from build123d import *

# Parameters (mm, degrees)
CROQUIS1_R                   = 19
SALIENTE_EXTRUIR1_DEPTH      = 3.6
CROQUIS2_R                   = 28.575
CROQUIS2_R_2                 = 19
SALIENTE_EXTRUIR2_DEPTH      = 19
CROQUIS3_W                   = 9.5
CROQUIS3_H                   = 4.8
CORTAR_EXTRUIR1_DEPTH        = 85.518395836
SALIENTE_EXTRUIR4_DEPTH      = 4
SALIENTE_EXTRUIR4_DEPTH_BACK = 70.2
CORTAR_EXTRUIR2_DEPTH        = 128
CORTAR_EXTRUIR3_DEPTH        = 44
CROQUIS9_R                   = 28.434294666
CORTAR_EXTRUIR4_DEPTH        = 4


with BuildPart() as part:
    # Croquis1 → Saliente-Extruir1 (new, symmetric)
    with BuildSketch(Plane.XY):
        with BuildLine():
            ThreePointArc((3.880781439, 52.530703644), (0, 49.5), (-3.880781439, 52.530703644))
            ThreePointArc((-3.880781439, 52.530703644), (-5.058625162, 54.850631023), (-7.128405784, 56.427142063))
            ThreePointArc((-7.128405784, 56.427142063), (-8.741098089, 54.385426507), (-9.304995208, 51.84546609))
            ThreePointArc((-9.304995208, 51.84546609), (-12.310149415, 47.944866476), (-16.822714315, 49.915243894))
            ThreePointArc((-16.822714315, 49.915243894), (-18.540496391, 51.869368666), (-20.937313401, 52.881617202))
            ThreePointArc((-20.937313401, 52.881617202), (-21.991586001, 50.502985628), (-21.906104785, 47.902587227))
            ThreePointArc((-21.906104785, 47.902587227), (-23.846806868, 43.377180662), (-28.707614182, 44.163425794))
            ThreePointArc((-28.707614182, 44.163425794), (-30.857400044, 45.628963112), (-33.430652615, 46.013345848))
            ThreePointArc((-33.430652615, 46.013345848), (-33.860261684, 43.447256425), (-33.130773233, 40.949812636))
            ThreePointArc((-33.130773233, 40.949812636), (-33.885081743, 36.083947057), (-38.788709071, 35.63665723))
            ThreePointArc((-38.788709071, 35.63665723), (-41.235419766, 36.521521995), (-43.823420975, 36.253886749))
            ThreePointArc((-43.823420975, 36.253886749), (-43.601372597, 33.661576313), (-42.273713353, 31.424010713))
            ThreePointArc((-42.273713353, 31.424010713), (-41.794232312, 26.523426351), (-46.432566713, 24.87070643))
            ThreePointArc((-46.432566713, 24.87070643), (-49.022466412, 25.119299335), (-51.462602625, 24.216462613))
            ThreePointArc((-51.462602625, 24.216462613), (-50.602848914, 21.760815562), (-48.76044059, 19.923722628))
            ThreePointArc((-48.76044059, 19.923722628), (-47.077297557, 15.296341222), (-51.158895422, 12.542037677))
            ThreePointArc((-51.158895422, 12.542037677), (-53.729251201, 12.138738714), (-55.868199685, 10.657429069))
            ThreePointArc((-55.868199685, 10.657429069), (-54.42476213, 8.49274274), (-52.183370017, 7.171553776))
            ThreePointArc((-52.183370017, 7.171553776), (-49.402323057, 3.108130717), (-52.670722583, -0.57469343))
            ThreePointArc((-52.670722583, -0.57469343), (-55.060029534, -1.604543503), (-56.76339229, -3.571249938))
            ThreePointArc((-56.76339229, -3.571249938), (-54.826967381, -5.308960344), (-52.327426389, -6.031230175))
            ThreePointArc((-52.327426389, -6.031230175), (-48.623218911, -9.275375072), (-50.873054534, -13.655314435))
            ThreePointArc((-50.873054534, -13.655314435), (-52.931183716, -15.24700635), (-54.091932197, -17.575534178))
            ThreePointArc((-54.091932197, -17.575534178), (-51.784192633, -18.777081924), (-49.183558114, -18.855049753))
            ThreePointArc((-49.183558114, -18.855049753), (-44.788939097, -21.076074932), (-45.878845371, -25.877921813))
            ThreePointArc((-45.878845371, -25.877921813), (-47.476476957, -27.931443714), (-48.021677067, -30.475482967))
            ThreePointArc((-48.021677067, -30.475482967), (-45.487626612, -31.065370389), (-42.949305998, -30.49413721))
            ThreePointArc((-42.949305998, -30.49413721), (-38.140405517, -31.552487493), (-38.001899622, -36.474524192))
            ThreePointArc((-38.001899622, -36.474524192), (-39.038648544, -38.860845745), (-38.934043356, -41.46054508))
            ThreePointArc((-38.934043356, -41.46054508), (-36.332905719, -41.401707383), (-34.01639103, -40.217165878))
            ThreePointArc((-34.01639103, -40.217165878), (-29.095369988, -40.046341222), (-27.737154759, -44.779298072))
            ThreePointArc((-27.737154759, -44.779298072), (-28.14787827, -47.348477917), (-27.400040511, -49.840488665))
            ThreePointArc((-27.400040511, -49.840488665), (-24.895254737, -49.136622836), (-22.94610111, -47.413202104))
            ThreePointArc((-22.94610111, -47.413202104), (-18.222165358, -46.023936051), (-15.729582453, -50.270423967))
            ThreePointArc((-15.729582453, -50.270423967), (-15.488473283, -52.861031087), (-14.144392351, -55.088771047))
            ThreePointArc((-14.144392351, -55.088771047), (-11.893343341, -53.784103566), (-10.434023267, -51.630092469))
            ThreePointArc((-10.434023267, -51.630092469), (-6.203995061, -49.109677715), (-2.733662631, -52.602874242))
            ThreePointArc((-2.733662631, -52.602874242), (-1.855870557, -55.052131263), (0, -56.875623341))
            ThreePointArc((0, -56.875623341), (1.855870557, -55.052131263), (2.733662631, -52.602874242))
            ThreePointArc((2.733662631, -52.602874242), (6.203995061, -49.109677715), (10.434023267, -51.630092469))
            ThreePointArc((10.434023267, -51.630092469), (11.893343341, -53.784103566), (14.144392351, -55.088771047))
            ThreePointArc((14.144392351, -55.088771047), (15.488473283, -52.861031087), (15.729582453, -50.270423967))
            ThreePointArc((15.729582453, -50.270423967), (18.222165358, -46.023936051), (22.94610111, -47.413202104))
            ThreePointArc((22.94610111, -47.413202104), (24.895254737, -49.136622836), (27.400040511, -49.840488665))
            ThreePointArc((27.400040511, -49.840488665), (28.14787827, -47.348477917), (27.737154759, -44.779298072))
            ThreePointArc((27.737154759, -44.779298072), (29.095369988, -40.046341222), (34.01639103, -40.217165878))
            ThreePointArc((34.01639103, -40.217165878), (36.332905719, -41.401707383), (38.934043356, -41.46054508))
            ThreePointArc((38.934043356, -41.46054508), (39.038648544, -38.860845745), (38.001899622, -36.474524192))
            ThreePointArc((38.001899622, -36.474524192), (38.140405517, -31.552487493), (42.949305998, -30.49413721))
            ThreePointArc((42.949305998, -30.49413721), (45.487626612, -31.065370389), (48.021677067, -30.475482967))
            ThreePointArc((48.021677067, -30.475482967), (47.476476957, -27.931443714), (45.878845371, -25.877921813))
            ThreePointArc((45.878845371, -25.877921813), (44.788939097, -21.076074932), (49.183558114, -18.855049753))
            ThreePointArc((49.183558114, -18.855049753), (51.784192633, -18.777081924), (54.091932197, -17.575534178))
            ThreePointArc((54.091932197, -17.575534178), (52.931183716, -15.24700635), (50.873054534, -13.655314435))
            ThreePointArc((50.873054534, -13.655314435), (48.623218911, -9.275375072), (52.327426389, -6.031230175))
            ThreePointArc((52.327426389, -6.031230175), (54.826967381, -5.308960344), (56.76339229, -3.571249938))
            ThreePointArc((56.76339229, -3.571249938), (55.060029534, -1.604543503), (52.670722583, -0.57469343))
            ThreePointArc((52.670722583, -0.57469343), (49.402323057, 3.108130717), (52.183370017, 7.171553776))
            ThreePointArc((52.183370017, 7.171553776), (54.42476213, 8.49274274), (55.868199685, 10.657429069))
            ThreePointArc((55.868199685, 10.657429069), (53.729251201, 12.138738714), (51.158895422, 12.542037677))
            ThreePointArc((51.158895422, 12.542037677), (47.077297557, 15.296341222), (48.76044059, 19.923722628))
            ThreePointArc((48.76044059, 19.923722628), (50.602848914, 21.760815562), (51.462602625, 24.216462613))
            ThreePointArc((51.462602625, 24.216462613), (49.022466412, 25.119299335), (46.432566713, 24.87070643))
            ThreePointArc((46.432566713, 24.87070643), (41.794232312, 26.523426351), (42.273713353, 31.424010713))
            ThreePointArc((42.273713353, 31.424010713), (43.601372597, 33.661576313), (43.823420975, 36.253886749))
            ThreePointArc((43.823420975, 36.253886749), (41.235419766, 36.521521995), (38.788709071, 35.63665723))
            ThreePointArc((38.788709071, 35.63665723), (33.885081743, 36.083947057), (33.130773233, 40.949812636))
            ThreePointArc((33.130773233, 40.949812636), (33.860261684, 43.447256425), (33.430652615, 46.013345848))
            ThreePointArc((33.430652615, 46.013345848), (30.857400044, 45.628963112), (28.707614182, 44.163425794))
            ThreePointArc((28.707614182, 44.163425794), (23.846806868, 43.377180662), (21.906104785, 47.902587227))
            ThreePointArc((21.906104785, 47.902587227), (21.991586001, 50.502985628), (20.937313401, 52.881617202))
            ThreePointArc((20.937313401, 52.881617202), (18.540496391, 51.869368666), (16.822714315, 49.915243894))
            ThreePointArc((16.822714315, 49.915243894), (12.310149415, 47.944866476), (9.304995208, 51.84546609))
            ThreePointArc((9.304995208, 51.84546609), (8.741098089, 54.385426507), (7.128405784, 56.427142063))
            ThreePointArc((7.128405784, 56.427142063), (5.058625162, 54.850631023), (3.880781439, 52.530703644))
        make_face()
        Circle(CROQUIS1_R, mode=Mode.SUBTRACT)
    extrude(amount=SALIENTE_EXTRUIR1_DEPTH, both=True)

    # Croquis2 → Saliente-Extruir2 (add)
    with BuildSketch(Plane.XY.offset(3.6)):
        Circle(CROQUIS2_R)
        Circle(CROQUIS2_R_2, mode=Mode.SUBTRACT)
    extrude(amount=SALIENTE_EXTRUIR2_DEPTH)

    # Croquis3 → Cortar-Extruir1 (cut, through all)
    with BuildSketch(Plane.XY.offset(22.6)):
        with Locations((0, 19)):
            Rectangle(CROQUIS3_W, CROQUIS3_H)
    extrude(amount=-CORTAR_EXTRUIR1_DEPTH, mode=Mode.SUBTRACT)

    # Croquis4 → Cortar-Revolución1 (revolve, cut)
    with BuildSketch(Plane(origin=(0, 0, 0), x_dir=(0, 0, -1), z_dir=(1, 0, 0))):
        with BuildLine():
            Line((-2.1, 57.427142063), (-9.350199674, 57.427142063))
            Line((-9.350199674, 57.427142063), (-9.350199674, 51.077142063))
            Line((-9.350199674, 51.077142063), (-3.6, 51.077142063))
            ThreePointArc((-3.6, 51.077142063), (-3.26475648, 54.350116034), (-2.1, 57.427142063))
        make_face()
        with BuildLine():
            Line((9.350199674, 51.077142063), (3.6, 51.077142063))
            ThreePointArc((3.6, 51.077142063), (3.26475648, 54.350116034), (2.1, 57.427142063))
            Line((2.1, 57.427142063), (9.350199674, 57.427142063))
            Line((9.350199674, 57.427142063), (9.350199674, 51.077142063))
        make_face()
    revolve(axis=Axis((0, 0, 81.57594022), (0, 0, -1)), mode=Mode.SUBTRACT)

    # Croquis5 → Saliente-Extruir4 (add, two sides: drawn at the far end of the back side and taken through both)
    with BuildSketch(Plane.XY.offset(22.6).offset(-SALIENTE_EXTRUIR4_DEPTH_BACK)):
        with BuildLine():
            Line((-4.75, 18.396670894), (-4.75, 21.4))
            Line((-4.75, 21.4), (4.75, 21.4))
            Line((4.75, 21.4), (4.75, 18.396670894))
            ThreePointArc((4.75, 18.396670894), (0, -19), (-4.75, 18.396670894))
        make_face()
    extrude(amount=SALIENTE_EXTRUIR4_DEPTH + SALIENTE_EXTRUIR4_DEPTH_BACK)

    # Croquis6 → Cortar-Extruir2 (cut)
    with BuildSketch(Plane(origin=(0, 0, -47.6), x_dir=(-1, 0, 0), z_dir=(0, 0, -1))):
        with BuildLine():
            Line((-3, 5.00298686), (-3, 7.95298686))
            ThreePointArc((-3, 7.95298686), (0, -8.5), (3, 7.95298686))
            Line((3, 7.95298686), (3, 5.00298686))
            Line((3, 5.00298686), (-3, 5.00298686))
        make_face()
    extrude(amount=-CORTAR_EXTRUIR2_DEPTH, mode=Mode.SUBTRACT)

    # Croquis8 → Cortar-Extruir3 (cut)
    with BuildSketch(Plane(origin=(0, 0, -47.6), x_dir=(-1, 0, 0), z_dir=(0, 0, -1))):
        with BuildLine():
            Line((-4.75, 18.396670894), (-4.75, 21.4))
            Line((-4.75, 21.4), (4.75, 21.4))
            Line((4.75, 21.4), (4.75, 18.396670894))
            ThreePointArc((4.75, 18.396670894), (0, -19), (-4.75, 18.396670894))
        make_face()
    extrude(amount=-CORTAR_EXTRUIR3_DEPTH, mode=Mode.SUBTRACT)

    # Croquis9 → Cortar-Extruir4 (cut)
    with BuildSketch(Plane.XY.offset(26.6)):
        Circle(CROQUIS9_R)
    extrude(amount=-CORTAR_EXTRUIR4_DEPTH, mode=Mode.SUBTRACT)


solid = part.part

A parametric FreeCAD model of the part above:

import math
import FreeCAD as App
import Part
import Sketcher

V = App.Vector
Q = App.Units.Quantity

doc = App.newDocument("Part")
body = doc.addObject("PartDesign::Body", "Body")

# Sketch on XY plane
sketch1 = doc.addObject("Sketcher::SketchObject", "Sketch")
body.addObject(sketch1)
sketch1.AttachmentSupport = (doc.XY_Plane, [""])
sketch1.MapMode = "FlatFace"
sketch1.addGeometry([
    Part.ArcOfCircle(Part.Circle(V(0, 53.5, 0), V(0, 0, 1), 4), math.radians(-166), math.radians(-14)),  # 0
    Part.ArcOfCircle(Part.Circle(V(-9.5, 51.1, 0), V(0, 0, 1), 5.8), math.radians(14), math.radians(66)),  # 1
    Part.ArcOfCircle(Part.Circle(V(-3.5, 51.9, 0), V(0, 0, 1), 5.8), math.radians(129), math.radians(180)),  # 2
    Part.ArcOfCircle(Part.Circle(V(-13.3, 51.8, 0), V(0, 0, 1), 4), math.radians(-152), math.radians(0)),  # 3
    Part.ArcOfCircle(Part.Circle(V(-21.9, 47.1, 0), V(0, 0, 1), 5.8), math.radians(28), math.radians(80)),  # 4
    Part.ArcOfCircle(Part.Circle(V(-16.3, 49.4, 0), V(0, 0, 1), 5.8), math.radians(143), math.radians(195)),  # 5
    Part.ArcOfCircle(Part.Circle(V(-25.8, 46.9, 0), V(0, 0, 1), 4), math.radians(-137), math.radians(15)),  # 6
    Part.ArcOfCircle(Part.Circle(V(-33, 40.2, 0), V(0, 0, 1), 5.8), math.radians(43), math.radians(94)),  # 7
    Part.ArcOfCircle(Part.Circle(V(-28, 43.8, 0), V(0, 0, 1), 5.8), math.radians(158), math.radians(209)),  # 8
    Part.ArcOfCircle(Part.Circle(V(-36.6, 39, 0), V(0, 0, 1), 4), math.radians(-123), math.radians(29)),  # 9
    Part.ArcOfCircle(Part.Circle(V(-41.9, 30.7, 0), V(0, 0, 1), 5.8), math.radians(57), math.radians(109)),  # 10
    Part.ArcOfCircle(Part.Circle(V(-38.1, 35.4, 0), V(0, 0, 1), 5.8), math.radians(172), math.radians(224)),  # 11
    Part.ArcOfCircle(Part.Circle(V(-45.2, 28.7, 0), V(0, 0, 1), 4), math.radians(-108), math.radians(44)),  # 12
    Part.ArcOfCircle(Part.Circle(V(-48.3, 19.3, 0), V(0, 0, 1), 5.8), math.radians(72), math.radians(123)),  # 13
    Part.ArcOfCircle(Part.Circle(V(-45.7, 24.9, 0), V(0, 0, 1), 5.8), math.radians(-174), math.radians(-122)),  # 14
    Part.ArcOfCircle(Part.Circle(V(-50.9, 16.5, 0), V(0, 0, 1), 4), math.radians(-94), math.radians(58)),  # 15
    Part.ArcOfCircle(Part.Circle(V(-51.6, 6.7, 0), V(0, 0, 1), 5.8), math.radians(86), math.radians(138)),  # 16
    Part.ArcOfCircle(Part.Circle(V(-50.4, 12.7, 0), V(0, 0, 1), 5.8), math.radians(-159), math.radians(-108)),  # 17
    Part.ArcOfCircle(Part.Circle(V(-53.4, 3.4, 0), V(0, 0, 1), 4), math.radians(-80), math.radians(72)),  # 18
    Part.ArcOfCircle(Part.Circle(V(-51.6, -6.3, 0), V(0, 0, 1), 5.8), math.radians(100), math.radians(152)),  # 19
    Part.ArcOfCircle(Part.Circle(V(-52, -0.2, 0), V(0, 0, 1), 5.8), math.radians(-145), math.radians(-93)),  # 20
    Part.ArcOfCircle(Part.Circle(V(-52.6, -10, 0), V(0, 0, 1), 4), math.radians(-65), math.radians(87)),  # 21
    Part.ArcOfCircle(Part.Circle(V(-48.4, -18.9, 0), V(0, 0, 1), 5.8), math.radians(115), math.radians(166)),  # 22
    Part.ArcOfCircle(Part.Circle(V(-50.3, -13.1, 0), V(0, 0, 1), 5.8), math.radians(-130), math.radians(-79)),  # 23
    Part.ArcOfCircle(Part.Circle(V(-48.4, -22.8, 0), V(0, 0, 1), 4), math.radians(-51), math.radians(101)),  # 24
    Part.ArcOfCircle(Part.Circle(V(-42.2, -30.4, 0), V(0, 0, 1), 5.8), math.radians(129), math.radians(181)),  # 25
    Part.ArcOfCircle(Part.Circle(V(-45.5, -25.2, 0), V(0, 0, 1), 5.8), math.radians(-116), math.radians(-64)),  # 26
    Part.ArcOfCircle(Part.Circle(V(-41.2, -34.1, 0), V(0, 0, 1), 4), math.radians(-36), math.radians(116)),  # 27
    Part.ArcOfCircle(Part.Circle(V(-33.3, -39.9, 0), V(0, 0, 1), 5.8), math.radians(144), math.radians(195)),  # 28
    Part.ArcOfCircle(Part.Circle(V(-37.8, -35.7, 0), V(0, 0, 1), 5.8), math.radians(-102), math.radians(-50)),  # 29
    Part.ArcOfCircle(Part.Circle(V(-31.4, -43.3, 0), V(0, 0, 1), 4), math.radians(-22), math.radians(130)),  # 30
    Part.ArcOfCircle(Part.Circle(V(-22.3, -47, 0), V(0, 0, 1), 5.8), math.radians(158), math.radians(210)),  # 31
    Part.ArcOfCircle(Part.Circle(V(-27.7, -44, 0), V(0, 0, 1), 5.8), math.radians(-87), math.radians(-36)),  # 32
    Part.ArcOfCircle(Part.Circle(V(-19.7, -49.7, 0), V(0, 0, 1), 4), math.radians(-8), math.radians(144)),  # 33
    Part.ArcOfCircle(Part.Circle(V(-10, -51, 0), V(0, 0, 1), 5.8), math.radians(172), math.radians(224)),  # 34
    Part.ArcOfCircle(Part.Circle(V(-15.9, -49.5, 0), V(0, 0, 1), 5.8), math.radians(-73), math.radians(-21)),  # 35
    Part.ArcOfCircle(Part.Circle(V(-6.7, -53.1, 0), V(0, 0, 1), 4), math.radians(7), math.radians(159)),  # 36
    Part.ArcOfCircle(Part.Circle(V(3.1, -51.9, 0), V(0, 0, 1), 5.8), math.radians(-173), math.radians(-122)),  # 37
    Part.ArcOfCircle(Part.Circle(V(-3.1, -51.9, 0), V(0, 0, 1), 5.8), math.radians(-58), math.radians(-7)),  # 38
    Part.ArcOfCircle(Part.Circle(V(6.7, -53.1, 0), V(0, 0, 1), 4), math.radians(21), math.radians(173)),  # 39
    Part.ArcOfCircle(Part.Circle(V(15.9, -49.5, 0), V(0, 0, 1), 5.8), math.radians(-159), math.radians(-107)),  # 40
    Part.ArcOfCircle(Part.Circle(V(10, -51, 0), V(0, 0, 1), 5.8), math.radians(-44), math.radians(8)),  # 41
    Part.ArcOfCircle(Part.Circle(V(19.7, -49.7, 0), V(0, 0, 1), 4), math.radians(36), math.radians(188)),  # 42
    Part.ArcOfCircle(Part.Circle(V(27.7, -44, 0), V(0, 0, 1), 5.8), math.radians(-144), math.radians(-93)),  # 43
    Part.ArcOfCircle(Part.Circle(V(22.3, -47, 0), V(0, 0, 1), 5.8), math.radians(-30), math.radians(22)),  # 44
    Part.ArcOfCircle(Part.Circle(V(31.4, -43.3, 0), V(0, 0, 1), 4), math.radians(50), math.radians(202)),  # 45
    Part.ArcOfCircle(Part.Circle(V(37.8, -35.7, 0), V(0, 0, 1), 5.8), math.radians(-130), math.radians(-78)),  # 46
    Part.ArcOfCircle(Part.Circle(V(33.3, -39.9, 0), V(0, 0, 1), 5.8), math.radians(-15), math.radians(36)),  # 47
    Part.ArcOfCircle(Part.Circle(V(41.2, -34.1, 0), V(0, 0, 1), 4), math.radians(64), math.radians(216)),  # 48
    Part.ArcOfCircle(Part.Circle(V(45.5, -25.2, 0), V(0, 0, 1), 5.8), math.radians(-116), math.radians(-64)),  # 49
    Part.ArcOfCircle(Part.Circle(V(42.2, -30.4, 0), V(0, 0, 1), 5.8), math.radians(-1), math.radians(51)),  # 50
    Part.ArcOfCircle(Part.Circle(V(48.4, -22.8, 0), V(0, 0, 1), 4), math.radians(79), math.radians(231)),  # 51
    Part.ArcOfCircle(Part.Circle(V(50.3, -13.1, 0), V(0, 0, 1), 5.8), math.radians(-101), math.radians(-50)),  # 52
    Part.ArcOfCircle(Part.Circle(V(48.4, -18.9, 0), V(0, 0, 1), 5.8), math.radians(14), math.radians(65)),  # 53
    Part.ArcOfCircle(Part.Circle(V(52.6, -10, 0), V(0, 0, 1), 4), math.radians(93), math.radians(245)),  # 54
    Part.ArcOfCircle(Part.Circle(V(52, -0.2, 0), V(0, 0, 1), 5.8), math.radians(-87), math.radians(-35)),  # 55
    Part.ArcOfCircle(Part.Circle(V(51.6, -6.3, 0), V(0, 0, 1), 5.8), math.radians(28), math.radians(80)),  # 56
    Part.ArcOfCircle(Part.Circle(V(53.4, 3.4, 0), V(0, 0, 1), 4), math.radians(108), math.radians(260)),  # 57
    Part.ArcOfCircle(Part.Circle(V(50.4, 12.7, 0), V(0, 0, 1), 5.8), math.radians(-72), math.radians(-21)),  # 58
    Part.ArcOfCircle(Part.Circle(V(51.6, 6.7, 0), V(0, 0, 1), 5.8), math.radians(42), math.radians(94)),  # 59
    Part.ArcOfCircle(Part.Circle(V(50.9, 16.5, 0), V(0, 0, 1), 4), math.radians(122), math.radians(274)),  # 60
    Part.ArcOfCircle(Part.Circle(V(45.7, 24.9, 0), V(0, 0, 1), 5.8), math.radians(-58), math.radians(-6)),  # 61
    Part.ArcOfCircle(Part.Circle(V(48.3, 19.3, 0), V(0, 0, 1), 5.8), math.radians(57), math.radians(108)),  # 62
    Part.ArcOfCircle(Part.Circle(V(45.2, 28.7, 0), V(0, 0, 1), 4), math.radians(136), math.radians(288)),  # 63
    Part.ArcOfCircle(Part.Circle(V(38.1, 35.4, 0), V(0, 0, 1), 5.8), math.radians(-44), math.radians(8)),  # 64
    Part.ArcOfCircle(Part.Circle(V(41.9, 30.7, 0), V(0, 0, 1), 5.8), math.radians(71), math.radians(123)),  # 65
    Part.ArcOfCircle(Part.Circle(V(36.6, 39, 0), V(0, 0, 1), 4), math.radians(151), math.radians(303)),  # 66
    Part.ArcOfCircle(Part.Circle(V(28, 43.8, 0), V(0, 0, 1), 5.8), math.radians(-29), math.radians(22)),  # 67
    Part.ArcOfCircle(Part.Circle(V(33, 40.2, 0), V(0, 0, 1), 5.8), math.radians(86), math.radians(137)),  # 68
    Part.ArcOfCircle(Part.Circle(V(25.8, 46.9, 0), V(0, 0, 1), 4), math.radians(165), math.radians(317)),  # 69
    Part.ArcOfCircle(Part.Circle(V(16.3, 49.4, 0), V(0, 0, 1), 5.8), math.radians(-15), math.radians(37)),  # 70
    Part.ArcOfCircle(Part.Circle(V(21.9, 47.1, 0), V(0, 0, 1), 5.8), math.radians(100), math.radians(152)),  # 71
    Part.ArcOfCircle(Part.Circle(V(13.3, 51.8, 0), V(0, 0, 1), 4), math.radians(180), math.radians(332)),  # 72
    Part.ArcOfCircle(Part.Circle(V(3.5, 51.9, 0), V(0, 0, 1), 5.8), math.radians(0), math.radians(51)),  # 73
    Part.ArcOfCircle(Part.Circle(V(9.5, 51.1, 0), V(0, 0, 1), 5.8), math.radians(114), math.radians(166)),  # 74
    Part.Circle(V(0, 0, 0), V(0, 0, 1), 19),  # 75
], False)
sketch1.addConstraint([
    Sketcher.Constraint("Tangent", 0, 1, 1, 1),
    Sketcher.Constraint("Coincident", 1, 2, 2, 1),
    Sketcher.Constraint("Tangent", 2, 2, 3, 2),
    Sketcher.Constraint("Tangent", 3, 1, 4, 1),
    Sketcher.Constraint("Coincident", 4, 2, 5, 1),
    Sketcher.Constraint("Tangent", 5, 2, 6, 2),
    Sketcher.Constraint("Tangent", 6, 1, 7, 1),
    Sketcher.Constraint("Coincident", 7, 2, 8, 1),
    Sketcher.Constraint("Tangent", 8, 2, 9, 2),
    Sketcher.Constraint("Tangent", 9, 1, 10, 1),
    Sketcher.Constraint("Coincident", 10, 2, 11, 1),
    Sketcher.Constraint("Tangent", 11, 2, 12, 2),
    Sketcher.Constraint("Tangent", 12, 1, 13, 1),
    Sketcher.Constraint("Coincident", 13, 2, 14, 1),
    Sketcher.Constraint("Tangent", 14, 2, 15, 2),
    Sketcher.Constraint("Tangent", 15, 1, 16, 1),
    Sketcher.Constraint("Coincident", 16, 2, 17, 1),
    Sketcher.Constraint("Tangent", 17, 2, 18, 2),
    Sketcher.Constraint("Tangent", 18, 1, 19, 1),
    Sketcher.Constraint("Coincident", 19, 2, 20, 1),
    Sketcher.Constraint("Tangent", 20, 2, 21, 2),
    Sketcher.Constraint("Tangent", 21, 1, 22, 1),
    Sketcher.Constraint("Coincident", 22, 2, 23, 1),
    Sketcher.Constraint("Tangent", 23, 2, 24, 2),
    Sketcher.Constraint("Tangent", 24, 1, 25, 1),
    Sketcher.Constraint("Coincident", 25, 2, 26, 1),
    Sketcher.Constraint("Tangent", 26, 2, 27, 2),
    Sketcher.Constraint("Tangent", 27, 1, 28, 1),
    Sketcher.Constraint("Coincident", 28, 2, 29, 1),
    Sketcher.Constraint("Tangent", 29, 2, 30, 2),
    Sketcher.Constraint("Tangent", 30, 1, 31, 1),
    Sketcher.Constraint("Coincident", 31, 2, 32, 1),
    Sketcher.Constraint("Tangent", 32, 2, 33, 2),
    Sketcher.Constraint("Tangent", 33, 1, 34, 1),
    Sketcher.Constraint("Coincident", 34, 2, 35, 1),
    Sketcher.Constraint("Tangent", 35, 2, 36, 2),
    Sketcher.Constraint("Tangent", 36, 1, 37, 1),
    Sketcher.Constraint("Coincident", 37, 2, 38, 1),
    Sketcher.Constraint("Tangent", 38, 2, 39, 2),
    Sketcher.Constraint("Tangent", 39, 1, 40, 1),
    Sketcher.Constraint("Coincident", 40, 2, 41, 1),
    Sketcher.Constraint("Tangent", 41, 2, 42, 2),
    Sketcher.Constraint("Tangent", 42, 1, 43, 1),
    Sketcher.Constraint("Coincident", 43, 2, 44, 1),
    Sketcher.Constraint("Tangent", 44, 2, 45, 2),
    Sketcher.Constraint("Tangent", 45, 1, 46, 1),
    Sketcher.Constraint("Coincident", 46, 2, 47, 1),
    Sketcher.Constraint("Tangent", 47, 2, 48, 2),
    Sketcher.Constraint("Tangent", 48, 1, 49, 1),
    Sketcher.Constraint("Coincident", 49, 2, 50, 1),
    Sketcher.Constraint("Tangent", 50, 2, 51, 2),
    Sketcher.Constraint("Tangent", 51, 1, 52, 1),
    Sketcher.Constraint("Coincident", 52, 2, 53, 1),
    Sketcher.Constraint("Tangent", 53, 2, 54, 2),
    Sketcher.Constraint("Tangent", 54, 1, 55, 1),
    Sketcher.Constraint("Coincident", 55, 2, 56, 1),
    Sketcher.Constraint("Tangent", 56, 2, 57, 2),
    Sketcher.Constraint("Tangent", 57, 1, 58, 1),
    Sketcher.Constraint("Coincident", 58, 2, 59, 1),
    Sketcher.Constraint("Tangent", 59, 2, 60, 2),
    Sketcher.Constraint("Tangent", 60, 1, 61, 1),
    Sketcher.Constraint("Coincident", 61, 2, 62, 1),
    Sketcher.Constraint("Tangent", 62, 2, 63, 2),
    Sketcher.Constraint("Tangent", 63, 1, 64, 1),
    Sketcher.Constraint("Coincident", 64, 2, 65, 1),
    Sketcher.Constraint("Tangent", 65, 2, 66, 2),
    Sketcher.Constraint("Tangent", 66, 1, 67, 1),
    Sketcher.Constraint("Coincident", 67, 2, 68, 1),
    Sketcher.Constraint("Tangent", 68, 2, 69, 2),
    Sketcher.Constraint("Tangent", 69, 1, 70, 1),
    Sketcher.Constraint("Coincident", 70, 2, 71, 1),
    Sketcher.Constraint("Tangent", 71, 2, 72, 2),
    Sketcher.Constraint("Tangent", 72, 1, 73, 1),
    Sketcher.Constraint("Coincident", 73, 2, 74, 1),
    Sketcher.Constraint("Tangent", 74, 2, 0, 2),
    Sketcher.Constraint("Coincident", 75, 3, -1, 1),
    Sketcher.Constraint("Equal", 1, 2),
    Sketcher.Constraint("Equal", 0, 3),
    Sketcher.Constraint("Equal", 2, 4),
    Sketcher.Constraint("Equal", 4, 5),
    Sketcher.Constraint("Equal", 3, 6),
    Sketcher.Constraint("Equal", 5, 7),
    Sketcher.Constraint("Equal", 7, 8),
    Sketcher.Constraint("Equal", 6, 9),
    Sketcher.Constraint("Equal", 8, 10),
    Sketcher.Constraint("Equal", 10, 11),
    Sketcher.Constraint("Equal", 9, 12),
    Sketcher.Constraint("Equal", 11, 13),
    Sketcher.Constraint("Equal", 13, 14),
    Sketcher.Constraint("Equal", 12, 15),
    Sketcher.Constraint("Equal", 14, 16),
    Sketcher.Constraint("Equal", 16, 17),
    Sketcher.Constraint("Equal", 15, 18),
    Sketcher.Constraint("Equal", 17, 19),
    Sketcher.Constraint("Equal", 19, 20),
    Sketcher.Constraint("Equal", 18, 21),
    Sketcher.Constraint("Equal", 20, 22),
    Sketcher.Constraint("Equal", 22, 23),
    Sketcher.Constraint("Equal", 21, 24),
    Sketcher.Constraint("Equal", 23, 25),
    Sketcher.Constraint("Equal", 25, 26),
    Sketcher.Constraint("Equal", 24, 27),
    Sketcher.Constraint("Equal", 26, 28),
    Sketcher.Constraint("Equal", 28, 29),
    Sketcher.Constraint("Equal", 27, 30),
    Sketcher.Constraint("Equal", 29, 31),
    Sketcher.Constraint("Equal", 31, 32),
    Sketcher.Constraint("Equal", 30, 33),
    Sketcher.Constraint("Equal", 32, 34),
    Sketcher.Constraint("Equal", 34, 35),
    Sketcher.Constraint("Equal", 33, 36),
    Sketcher.Constraint("Equal", 35, 37),
    Sketcher.Constraint("Equal", 37, 38),
    Sketcher.Constraint("Equal", 36, 39),
    Sketcher.Constraint("Equal", 38, 40),
    Sketcher.Constraint("Equal", 40, 41),
    Sketcher.Constraint("Equal", 39, 42),
    Sketcher.Constraint("Equal", 41, 43),
    Sketcher.Constraint("Equal", 43, 44),
    Sketcher.Constraint("Equal", 42, 45),
    Sketcher.Constraint("Equal", 44, 46),
    Sketcher.Constraint("Equal", 46, 47),
    Sketcher.Constraint("Equal", 45, 48),
    Sketcher.Constraint("Equal", 47, 49),
    Sketcher.Constraint("Equal", 49, 50),
    Sketcher.Constraint("Equal", 48, 51),
    Sketcher.Constraint("Equal", 50, 52),
    Sketcher.Constraint("Equal", 52, 53),
    Sketcher.Constraint("Equal", 51, 54),
    Sketcher.Constraint("Equal", 53, 55),
    Sketcher.Constraint("Equal", 55, 56),
    Sketcher.Constraint("Equal", 54, 57),
    Sketcher.Constraint("Equal", 56, 58),
    Sketcher.Constraint("Equal", 58, 59),
    Sketcher.Constraint("Equal", 57, 60),
    Sketcher.Constraint("Equal", 59, 61),
    Sketcher.Constraint("Equal", 61, 62),
    Sketcher.Constraint("Equal", 60, 63),
    Sketcher.Constraint("Equal", 62, 64),
    Sketcher.Constraint("Equal", 64, 65),
    Sketcher.Constraint("Equal", 63, 66),
    Sketcher.Constraint("Equal", 65, 67),
    Sketcher.Constraint("Equal", 67, 68),
    Sketcher.Constraint("Equal", 66, 69),
    Sketcher.Constraint("Equal", 68, 70),
    Sketcher.Constraint("Equal", 70, 71),
    Sketcher.Constraint("Equal", 69, 72),
    Sketcher.Constraint("Equal", 71, 73),
    Sketcher.Constraint("Equal", 73, 74),
    Sketcher.Constraint("Symmetric", 37, 3, 38, 3, -2),
    Sketcher.Constraint("Symmetric", 35, 3, 40, 3, -2),
    Sketcher.Constraint("Symmetric", 34, 3, 41, 3, -2),
    Sketcher.Constraint("Symmetric", 32, 3, 43, 3, -2),
    Sketcher.Constraint("Symmetric", 31, 3, 44, 3, -2),
    Sketcher.Constraint("Symmetric", 29, 3, 46, 3, -2),
    Sketcher.Constraint("Symmetric", 28, 3, 47, 3, -2),
    Sketcher.Constraint("Symmetric", 26, 3, 49, 3, -2),
    Sketcher.Constraint("Symmetric", 25, 3, 50, 3, -2),
    Sketcher.Constraint("Symmetric", 23, 3, 52, 3, -2),
    Sketcher.Constraint("Symmetric", 22, 3, 53, 3, -2),
    Sketcher.Constraint("Symmetric", 20, 3, 55, 3, -2),
    Sketcher.Constraint("Symmetric", 19, 3, 56, 3, -2),
    Sketcher.Constraint("Symmetric", 17, 3, 58, 3, -2),
    Sketcher.Constraint("Symmetric", 16, 3, 59, 3, -2),
    Sketcher.Constraint("Symmetric", 14, 3, 61, 3, -2),
    Sketcher.Constraint("Symmetric", 13, 3, 62, 3, -2),
    Sketcher.Constraint("Symmetric", 11, 3, 64, 3, -2),
    Sketcher.Constraint("Symmetric", 10, 3, 65, 3, -2),
    Sketcher.Constraint("Symmetric", 8, 3, 67, 3, -2),
    Sketcher.Constraint("Symmetric", 7, 3, 68, 3, -2),
    Sketcher.Constraint("Symmetric", 5, 3, 70, 3, -2),
    Sketcher.Constraint("Symmetric", 4, 3, 71, 3, -2),
    Sketcher.Constraint("Symmetric", 2, 3, 73, 3, -2),
    Sketcher.Constraint("Symmetric", 1, 3, 74, 3, -2),
    Sketcher.Constraint("Diameter", 75, Q("38 mm")),
    Sketcher.Constraint("Radius", 0, Q("4 mm")),
    Sketcher.Constraint("Radius", 1, Q("5.83 mm")),
    Sketcher.Constraint("DistanceY", -1, 1, 0, 3, Q("53.5 mm")),
    Sketcher.Constraint("DistanceY", -1, 1, 3, 3, Q("51.819199 mm")),
    Sketcher.Constraint("DistanceY", -1, 1, 5, 3, Q("49.389499 mm")),
    Sketcher.Constraint("DistanceY", 21, 3, -1, 1, Q("10.0249 mm")),
    Sketcher.Constraint("DistanceX", 16, 2, -1, 1, Q("55.8682 mm")),
    Sketcher.Constraint("DistanceX", 27, 1, -1, 1, Q("38.0019 mm")),
    Sketcher.Constraint("DistanceY", 30, 1, -1, 1, Q("44.779298 mm")),
    Sketcher.Constraint("DistanceX", 32, 2, -1, 1, Q("22.946101 mm")),
    Sketcher.Constraint("DistanceX", 1, 3, -1, 1, Q("9.53702 mm")),
    Sketcher.Constraint("DistanceX", 2, 3, -1, 1, Q("3.475121 mm")),
    Sketcher.Constraint("DistanceY", -1, 1, 2, 3, Q("51.88375 mm")),
    Sketcher.Constraint("DistanceY", -1, 1, 4, 3, Q("47.140229 mm")),
    Sketcher.Constraint("DistanceX", 6, 3, -1, 1, Q("25.773822 mm")),
    Sketcher.Constraint("DistanceY", -1, 1, 7, 3, Q("40.20051 mm")),
    Sketcher.Constraint("DistanceX", 8, 3, -1, 1, Q("28.040459 mm")),
    Sketcher.Constraint("DistanceX", 9, 3, -1, 1, Q("36.62327 mm")),
    Sketcher.Constraint("DistanceY", -1, 1, 9, 3, Q("38.999822 mm")),
    Sketcher.Constraint("DistanceY", -1, 1, 14, 3, Q("24.866562 mm")),
    Sketcher.Constraint("DistanceY", -1, 1, 15, 3, Q("16.532409 mm")),
    Sketcher.Constraint("DistanceY", -1, 1, 16, 3, Q("6.726071 mm")),
    Sketcher.Constraint("DistanceX", 17, 3, -1, 1, Q("50.41825 mm")),
    Sketcher.Constraint("DistanceX", 18, 3, -1, 1, Q("53.39443 mm")),
    Sketcher.Constraint("DistanceX", 19, 3, -1, 1, Q("51.615919 mm")),
    Sketcher.Constraint("DistanceY", 19, 3, -1, 1, Q("6.308478 mm")),
    Sketcher.Constraint("DistanceY", 25, 3, -1, 1, Q("30.39432 mm")),
    Sketcher.Constraint("DistanceY", 26, 3, -1, 1, Q("25.23541 mm")),
    Sketcher.Constraint("DistanceX", 27, 3, -1, 1, Q("41.222458 mm")),
    Sketcher.Constraint("DistanceY", 28, 3, -1, 1, Q("39.932211 mm")),
    Sketcher.Constraint("DistanceX", 29, 3, -1, 1, Q("37.761991 mm")),
    Sketcher.Constraint("DistanceX", 30, 3, -1, 1, Q("31.446511 mm")),
    Sketcher.Constraint("DistanceY", 30, 3, -1, 1, Q("43.282409 mm")),
    Sketcher.Constraint("DistanceX", 32, 3, -1, 1, Q("27.685071 mm")),
    Sketcher.Constraint("DistanceY", 32, 3, -1, 1, Q("44.01746 mm")),
    Sketcher.Constraint("DistanceY", 35, 3, -1, 1, Q("49.519568 mm")),
    Sketcher.Constraint("DistanceX", -1, 1, 37, 3, Q("3.05504 mm")),
    Sketcher.Constraint("DistanceY", 37, 3, -1, 1, Q("51.910179 mm")),
    Sketcher.Constraint("DistanceX", 9, 1, -1, 1, Q("38.788709 mm")),
    Sketcher.Constraint("DistanceX", 10, 2, -1, 1, Q("43.823421 mm")),
    Sketcher.Constraint("DistanceY", -1, 1, 11, 2, Q("31.424011 mm")),
    Sketcher.Constraint("DistanceY", 19, 2, -1, 1, Q("3.57125 mm")),
    Sketcher.Constraint("DistanceY", 20, 2, -1, 1, Q("6.03123 mm")),
    Sketcher.Constraint("DistanceX", 23, 2, -1, 1, Q("49.183558 mm")),
    Sketcher.Constraint("DistanceY", 23, 2, -1, 1, Q("18.85505 mm")),
    Sketcher.Constraint("DistanceY", 24, 1, -1, 1, Q("25.877922 mm")),
    Sketcher.Constraint("DistanceY", 34, 2, -1, 1, Q("55.088771 mm")),
    Sketcher.Constraint("DistanceX", 5, 3, -1, 1, Q("16.268908 mm")),
    Sketcher.Constraint("DistanceX", 11, 3, -1, 1, Q("38.050125 mm")),
    Sketcher.Constraint("DistanceX", 13, 3, -1, 1, Q("48.270507 mm")),
    Sketcher.Constraint("DistanceX", 22, 3, -1, 1, Q("48.425455 mm")),
    Sketcher.Constraint("DistanceX", 34, 3, -1, 1, Q("9.950477 mm")),
])
pad1 = doc.addObject("PartDesign::Pad", "Pad")
body.addObject(pad1)
pad1.Profile = sketch1
pad1.Length = 7.2
pad1.Midplane = True

# Sketch on XY plane
sketch2 = doc.addObject("Sketcher::SketchObject", "Sketch001")
body.addObject(sketch2)
sketch2.AttachmentSupport = (doc.XY_Plane, [""])
sketch2.MapMode = "FlatFace"
sketch2.AttachmentOffset = App.Placement(V(0, 0, 3.6), App.Rotation())
sketch2.addGeometry([
    Part.Circle(V(0, 0, 0), V(0, 0, 1), 29),
    Part.Circle(V(0, 0, 0), V(0, 0, 1), 19),
], False)
sketch2.addConstraint([
    Sketcher.Constraint("Coincident", 0, 3, -1, 1),
    Sketcher.Constraint("Coincident", 1, 3, -1, 1),
    Sketcher.Constraint("Diameter", 1, Q("38 mm")),
    Sketcher.Constraint("Diameter", 0, Q("57.15 mm")),
])
pad2 = doc.addObject("PartDesign::Pad", "Pad001")
body.addObject(pad2)
pad2.Profile = sketch2
pad2.Length = 19

# Sketch on XY plane
sketch3 = doc.addObject("Sketcher::SketchObject", "Sketch002")
body.addObject(sketch3)
sketch3.AttachmentSupport = (doc.XY_Plane, [""])
sketch3.MapMode = "FlatFace"
sketch3.AttachmentOffset = App.Placement(V(0, 0, 22.6), App.Rotation())
sketch3.addGeometry([
    Part.LineSegment(V(-4.8, 21.4, 0), V(-4.8, 16.6, 0)),
    Part.LineSegment(V(-4.8, 16.6, 0), V(4.8, 16.6, 0)),
    Part.LineSegment(V(4.8, 16.6, 0), V(4.8, 21.4, 0)),
    Part.LineSegment(V(4.8, 21.4, 0), V(-4.8, 21.4, 0)),
], False)
sketch3.addConstraint([
    Sketcher.Constraint("Coincident", 0, 2, 1, 1),
    Sketcher.Constraint("Coincident", 1, 2, 2, 1),
    Sketcher.Constraint("Coincident", 2, 2, 3, 1),
    Sketcher.Constraint("Coincident", 3, 2, 0, 1),
    Sketcher.Constraint("Vertical", 0),
    Sketcher.Constraint("Horizontal", 1),
    Sketcher.Constraint("Vertical", 2),
    Sketcher.Constraint("Horizontal", 3),
    Sketcher.Constraint("DistanceX", 1, 1, 1, 2, Q("9.5 mm")),
    Sketcher.Constraint("DistanceY", 0, 2, 0, 1, Q("4.8 mm")),
    Sketcher.Constraint("DistanceY", -1, 1, 0, 2, Q("16.6 mm")),
    Sketcher.Constraint("DistanceX", 0, 2, -1, 1, Q("4.75 mm")),
])
pocket1 = doc.addObject("PartDesign::Pocket", "Pocket")
body.addObject(pocket1)
pocket1.Profile = sketch3
pocket1.Type = "ThroughAll"

# Sketch on YZ plane
sketch4 = doc.addObject("Sketcher::SketchObject", "Sketch003")
body.addObject(sketch4)
sketch4.AttachmentSupport = (doc.YZ_Plane, [""])
sketch4.MapMode = "FlatFace"
sketch4.addGeometry([
    Part.LineSegment(V(57, 2, 0), V(57, 9, 0)),  # 0
    Part.LineSegment(V(57, 9, 0), V(51, 9, 0)),  # 1
    Part.LineSegment(V(51, 9, 0), V(51, 4, 0)),  # 2
    Part.ArcOfCircle(Part.Circle(V(51, -9, 0), V(0, 0, 1), 13), math.radians(62), math.radians(92)),  # 3
    Part.LineSegment(V(51, -4, 0), V(51, -9, 0)),  # 4
    Part.LineSegment(V(51, -9, 0), V(57, -9, 0)),  # 5
    Part.LineSegment(V(57, -9, 0), V(57, -2, 0)),  # 6
    Part.ArcOfCircle(Part.Circle(V(51, 9, 0), V(0, 0, 1), 13), math.radians(-92), math.radians(-62)),  # 7
], False)
sketch4.addConstraint([
    Sketcher.Constraint("Coincident", 0, 2, 1, 1),
    Sketcher.Constraint("Coincident", 1, 2, 2, 1),
    Sketcher.Constraint("Coincident", 2, 2, 3, 2),
    Sketcher.Constraint("Coincident", 3, 1, 0, 1),
    Sketcher.Constraint("Coincident", 4, 2, 5, 1),
    Sketcher.Constraint("Coincident", 5, 2, 6, 1),
    Sketcher.Constraint("Coincident", 6, 2, 7, 2),
    Sketcher.Constraint("Coincident", 7, 1, 4, 1),
    Sketcher.Constraint("Vertical", 0),
    Sketcher.Constraint("Horizontal", 1),
    Sketcher.Constraint("Vertical", 2),
    Sketcher.Constraint("Vertical", 4),
    Sketcher.Constraint("Horizontal", 5),
    Sketcher.Constraint("Vertical", 6),
    Sketcher.Constraint("Equal", 3, 7),
    Sketcher.Constraint("Symmetric", 3, 3, 7, 3, -1),
    Sketcher.Constraint("Symmetric", 1, 2, 4, 2, -1),
    Sketcher.Constraint("Vertical", 3, 1, 5, 2),
    Sketcher.Constraint("Radius", 3, Q("12.7 mm")),
    Sketcher.Constraint("DistanceX", 1, 2, 1, 1, Q("6.35 mm")),
    Sketcher.Constraint("DistanceY", -1, 1, 2, 2, Q("3.6 mm")),
    Sketcher.Constraint("DistanceY", -1, 1, 3, 1, Q("2.1 mm")),
    Sketcher.Constraint("DistanceY", 0, 1, 0, 2, Q("7.2502 mm")),
    Sketcher.Constraint("DistanceX", -1, 1, 3, 3, Q("51.430469 mm")),
])
groove = doc.addObject("PartDesign::Groove", "Groove")
body.addObject(groove)
groove.Profile = sketch4
groove.ReferenceAxis = (sketch4, ["V_Axis"])
groove.Angle = 360

# Sketch on XY plane
sketch5 = doc.addObject("Sketcher::SketchObject", "Sketch004")
body.addObject(sketch5)
sketch5.AttachmentSupport = (doc.XY_Plane, [""])
sketch5.MapMode = "FlatFace"
sketch5.AttachmentOffset = App.Placement(V(0, 0, 22.6), App.Rotation())
sketch5.addGeometry([
    Part.LineSegment(V(-4.8, 21.4, 0), V(-4.8, 18.4, 0)),
    Part.ArcOfCircle(Part.Circle(V(0, 0, 0), V(0, 0, 1), 19), math.radians(104), math.radians(436)),
    Part.LineSegment(V(4.8, 18.4, 0), V(4.8, 21.4, 0)),
    Part.LineSegment(V(4.8, 21.4, 0), V(-4.8, 21.4, 0)),
], False)
sketch5.addConstraint([
    Sketcher.Constraint("Coincident", 0, 2, 1, 1),
    Sketcher.Constraint("Coincident", 1, 2, 2, 1),
    Sketcher.Constraint("Coincident", 2, 2, 3, 1),
    Sketcher.Constraint("Coincident", 3, 2, 0, 1),
    Sketcher.Constraint("Vertical", 0),
    Sketcher.Constraint("Vertical", 2),
    Sketcher.Constraint("Horizontal", 3),
    Sketcher.Constraint("Coincident", 1, 3, -1, 1),
    Sketcher.Constraint("Horizontal", 0, 2, 1, 2),
    Sketcher.Constraint("Radius", 1, Q("19 mm")),
    Sketcher.Constraint("DistanceX", 3, 2, 3, 1, Q("9.5 mm")),
    Sketcher.Constraint("DistanceY", -1, 1, 2, 2, Q("21.4 mm")),
])
pad3 = doc.addObject("PartDesign::Pad", "Pad002")
body.addObject(pad3)
pad3.Profile = sketch5
pad3.Type = "TwoLengths"
pad3.Length = 4
pad3.Length2 = 70.2

# Sketch on XY plane
sketch6 = doc.addObject("Sketcher::SketchObject", "Sketch005")
body.addObject(sketch6)
sketch6.AttachmentSupport = (doc.XY_Plane, [""])
sketch6.MapMode = "FlatFace"
sketch6.AttachmentOffset = App.Placement(V(0, 0, -47.6), App.Rotation())
sketch6.addGeometry([
    Part.LineSegment(V(3, 5, 0), V(3, 8, 0)),
    Part.ArcOfCircle(Part.Circle(V(0, 0, 0), V(0, 0, 1), 8.5), math.radians(111), math.radians(429)),
    Part.LineSegment(V(-3, 8, 0), V(-3, 5, 0)),
    Part.LineSegment(V(-3, 5, 0), V(3, 5, 0)),
], False)
sketch6.addConstraint([
    Sketcher.Constraint("Coincident", 0, 2, 1, 2),
    Sketcher.Constraint("Coincident", 1, 1, 2, 1),
    Sketcher.Constraint("Coincident", 2, 2, 3, 1),
    Sketcher.Constraint("Coincident", 3, 2, 0, 1),
    Sketcher.Constraint("Vertical", 0),
    Sketcher.Constraint("Vertical", 2),
    Sketcher.Constraint("Horizontal", 3),
    Sketcher.Constraint("Coincident", 1, 3, -1, 1),
    Sketcher.Constraint("Horizontal", 0, 2, 1, 1),
    Sketcher.Constraint("Radius", 1, Q("8.5 mm")),
    Sketcher.Constraint("DistanceX", 3, 1, 3, 2, Q("6 mm")),
    Sketcher.Constraint("DistanceY", 0, 1, 0, 2, Q("2.95 mm")),
])
pocket2 = doc.addObject("PartDesign::Pocket", "Pocket001")
body.addObject(pocket2)
pocket2.Profile = sketch6
pocket2.Length = 128
pocket2.Reversed = True

# Sketch on XY plane
sketch7 = doc.addObject("Sketcher::SketchObject", "Sketch006")
body.addObject(sketch7)
sketch7.AttachmentSupport = (doc.XY_Plane, [""])
sketch7.MapMode = "FlatFace"
sketch7.AttachmentOffset = App.Placement(V(0, 0, -47.6), App.Rotation())
sketch7.addGeometry([
    Part.LineSegment(V(4.8, 21.4, 0), V(4.8, 18.4, 0)),
    Part.ArcOfCircle(Part.Circle(V(0, 0, 0), V(0, 0, 1), 19), math.radians(104), math.radians(436)),
    Part.LineSegment(V(-4.8, 18.4, 0), V(-4.8, 21.4, 0)),
    Part.LineSegment(V(-4.8, 21.4, 0), V(4.8, 21.4, 0)),
], False)
sketch7.addConstraint([
    Sketcher.Constraint("Coincident", 0, 2, 1, 2),
    Sketcher.Constraint("Coincident", 1, 1, 2, 1),
    Sketcher.Constraint("Coincident", 2, 2, 3, 1),
    Sketcher.Constraint("Coincident", 3, 2, 0, 1),
    Sketcher.Constraint("Vertical", 0),
    Sketcher.Constraint("Vertical", 2),
    Sketcher.Constraint("Horizontal", 3),
    Sketcher.Constraint("Coincident", 1, 3, -1, 1),
    Sketcher.Constraint("Horizontal", 0, 2, 1, 1),
    Sketcher.Constraint("Radius", 1, Q("19 mm")),
    Sketcher.Constraint("DistanceX", 3, 1, 3, 2, Q("9.5 mm")),
    Sketcher.Constraint("DistanceY", -1, 1, 2, 2, Q("21.4 mm")),
])
pocket3 = doc.addObject("PartDesign::Pocket", "Pocket002")
body.addObject(pocket3)
pocket3.Profile = sketch7
pocket3.Length = 44
pocket3.Reversed = True

# Sketch on XY plane
sketch8 = doc.addObject("Sketcher::SketchObject", "Sketch007")
body.addObject(sketch8)
sketch8.AttachmentSupport = (doc.XY_Plane, [""])
sketch8.MapMode = "FlatFace"
sketch8.AttachmentOffset = App.Placement(V(0, 0, 26.6), App.Rotation())
sketch8.addGeometry(Part.Circle(V(0, 0, 0), V(0, 0, 1), 28), False)
sketch8.addConstraint([
    Sketcher.Constraint("Coincident", 0, 3, -1, 1),
    Sketcher.Constraint("Diameter", 0, Q("56.868589 mm")),
])
pocket4 = doc.addObject("PartDesign::Pocket", "Pocket003")
body.addObject(pocket4)
pocket4.Profile = sketch8
pocket4.Length = 4

doc.recompute()
